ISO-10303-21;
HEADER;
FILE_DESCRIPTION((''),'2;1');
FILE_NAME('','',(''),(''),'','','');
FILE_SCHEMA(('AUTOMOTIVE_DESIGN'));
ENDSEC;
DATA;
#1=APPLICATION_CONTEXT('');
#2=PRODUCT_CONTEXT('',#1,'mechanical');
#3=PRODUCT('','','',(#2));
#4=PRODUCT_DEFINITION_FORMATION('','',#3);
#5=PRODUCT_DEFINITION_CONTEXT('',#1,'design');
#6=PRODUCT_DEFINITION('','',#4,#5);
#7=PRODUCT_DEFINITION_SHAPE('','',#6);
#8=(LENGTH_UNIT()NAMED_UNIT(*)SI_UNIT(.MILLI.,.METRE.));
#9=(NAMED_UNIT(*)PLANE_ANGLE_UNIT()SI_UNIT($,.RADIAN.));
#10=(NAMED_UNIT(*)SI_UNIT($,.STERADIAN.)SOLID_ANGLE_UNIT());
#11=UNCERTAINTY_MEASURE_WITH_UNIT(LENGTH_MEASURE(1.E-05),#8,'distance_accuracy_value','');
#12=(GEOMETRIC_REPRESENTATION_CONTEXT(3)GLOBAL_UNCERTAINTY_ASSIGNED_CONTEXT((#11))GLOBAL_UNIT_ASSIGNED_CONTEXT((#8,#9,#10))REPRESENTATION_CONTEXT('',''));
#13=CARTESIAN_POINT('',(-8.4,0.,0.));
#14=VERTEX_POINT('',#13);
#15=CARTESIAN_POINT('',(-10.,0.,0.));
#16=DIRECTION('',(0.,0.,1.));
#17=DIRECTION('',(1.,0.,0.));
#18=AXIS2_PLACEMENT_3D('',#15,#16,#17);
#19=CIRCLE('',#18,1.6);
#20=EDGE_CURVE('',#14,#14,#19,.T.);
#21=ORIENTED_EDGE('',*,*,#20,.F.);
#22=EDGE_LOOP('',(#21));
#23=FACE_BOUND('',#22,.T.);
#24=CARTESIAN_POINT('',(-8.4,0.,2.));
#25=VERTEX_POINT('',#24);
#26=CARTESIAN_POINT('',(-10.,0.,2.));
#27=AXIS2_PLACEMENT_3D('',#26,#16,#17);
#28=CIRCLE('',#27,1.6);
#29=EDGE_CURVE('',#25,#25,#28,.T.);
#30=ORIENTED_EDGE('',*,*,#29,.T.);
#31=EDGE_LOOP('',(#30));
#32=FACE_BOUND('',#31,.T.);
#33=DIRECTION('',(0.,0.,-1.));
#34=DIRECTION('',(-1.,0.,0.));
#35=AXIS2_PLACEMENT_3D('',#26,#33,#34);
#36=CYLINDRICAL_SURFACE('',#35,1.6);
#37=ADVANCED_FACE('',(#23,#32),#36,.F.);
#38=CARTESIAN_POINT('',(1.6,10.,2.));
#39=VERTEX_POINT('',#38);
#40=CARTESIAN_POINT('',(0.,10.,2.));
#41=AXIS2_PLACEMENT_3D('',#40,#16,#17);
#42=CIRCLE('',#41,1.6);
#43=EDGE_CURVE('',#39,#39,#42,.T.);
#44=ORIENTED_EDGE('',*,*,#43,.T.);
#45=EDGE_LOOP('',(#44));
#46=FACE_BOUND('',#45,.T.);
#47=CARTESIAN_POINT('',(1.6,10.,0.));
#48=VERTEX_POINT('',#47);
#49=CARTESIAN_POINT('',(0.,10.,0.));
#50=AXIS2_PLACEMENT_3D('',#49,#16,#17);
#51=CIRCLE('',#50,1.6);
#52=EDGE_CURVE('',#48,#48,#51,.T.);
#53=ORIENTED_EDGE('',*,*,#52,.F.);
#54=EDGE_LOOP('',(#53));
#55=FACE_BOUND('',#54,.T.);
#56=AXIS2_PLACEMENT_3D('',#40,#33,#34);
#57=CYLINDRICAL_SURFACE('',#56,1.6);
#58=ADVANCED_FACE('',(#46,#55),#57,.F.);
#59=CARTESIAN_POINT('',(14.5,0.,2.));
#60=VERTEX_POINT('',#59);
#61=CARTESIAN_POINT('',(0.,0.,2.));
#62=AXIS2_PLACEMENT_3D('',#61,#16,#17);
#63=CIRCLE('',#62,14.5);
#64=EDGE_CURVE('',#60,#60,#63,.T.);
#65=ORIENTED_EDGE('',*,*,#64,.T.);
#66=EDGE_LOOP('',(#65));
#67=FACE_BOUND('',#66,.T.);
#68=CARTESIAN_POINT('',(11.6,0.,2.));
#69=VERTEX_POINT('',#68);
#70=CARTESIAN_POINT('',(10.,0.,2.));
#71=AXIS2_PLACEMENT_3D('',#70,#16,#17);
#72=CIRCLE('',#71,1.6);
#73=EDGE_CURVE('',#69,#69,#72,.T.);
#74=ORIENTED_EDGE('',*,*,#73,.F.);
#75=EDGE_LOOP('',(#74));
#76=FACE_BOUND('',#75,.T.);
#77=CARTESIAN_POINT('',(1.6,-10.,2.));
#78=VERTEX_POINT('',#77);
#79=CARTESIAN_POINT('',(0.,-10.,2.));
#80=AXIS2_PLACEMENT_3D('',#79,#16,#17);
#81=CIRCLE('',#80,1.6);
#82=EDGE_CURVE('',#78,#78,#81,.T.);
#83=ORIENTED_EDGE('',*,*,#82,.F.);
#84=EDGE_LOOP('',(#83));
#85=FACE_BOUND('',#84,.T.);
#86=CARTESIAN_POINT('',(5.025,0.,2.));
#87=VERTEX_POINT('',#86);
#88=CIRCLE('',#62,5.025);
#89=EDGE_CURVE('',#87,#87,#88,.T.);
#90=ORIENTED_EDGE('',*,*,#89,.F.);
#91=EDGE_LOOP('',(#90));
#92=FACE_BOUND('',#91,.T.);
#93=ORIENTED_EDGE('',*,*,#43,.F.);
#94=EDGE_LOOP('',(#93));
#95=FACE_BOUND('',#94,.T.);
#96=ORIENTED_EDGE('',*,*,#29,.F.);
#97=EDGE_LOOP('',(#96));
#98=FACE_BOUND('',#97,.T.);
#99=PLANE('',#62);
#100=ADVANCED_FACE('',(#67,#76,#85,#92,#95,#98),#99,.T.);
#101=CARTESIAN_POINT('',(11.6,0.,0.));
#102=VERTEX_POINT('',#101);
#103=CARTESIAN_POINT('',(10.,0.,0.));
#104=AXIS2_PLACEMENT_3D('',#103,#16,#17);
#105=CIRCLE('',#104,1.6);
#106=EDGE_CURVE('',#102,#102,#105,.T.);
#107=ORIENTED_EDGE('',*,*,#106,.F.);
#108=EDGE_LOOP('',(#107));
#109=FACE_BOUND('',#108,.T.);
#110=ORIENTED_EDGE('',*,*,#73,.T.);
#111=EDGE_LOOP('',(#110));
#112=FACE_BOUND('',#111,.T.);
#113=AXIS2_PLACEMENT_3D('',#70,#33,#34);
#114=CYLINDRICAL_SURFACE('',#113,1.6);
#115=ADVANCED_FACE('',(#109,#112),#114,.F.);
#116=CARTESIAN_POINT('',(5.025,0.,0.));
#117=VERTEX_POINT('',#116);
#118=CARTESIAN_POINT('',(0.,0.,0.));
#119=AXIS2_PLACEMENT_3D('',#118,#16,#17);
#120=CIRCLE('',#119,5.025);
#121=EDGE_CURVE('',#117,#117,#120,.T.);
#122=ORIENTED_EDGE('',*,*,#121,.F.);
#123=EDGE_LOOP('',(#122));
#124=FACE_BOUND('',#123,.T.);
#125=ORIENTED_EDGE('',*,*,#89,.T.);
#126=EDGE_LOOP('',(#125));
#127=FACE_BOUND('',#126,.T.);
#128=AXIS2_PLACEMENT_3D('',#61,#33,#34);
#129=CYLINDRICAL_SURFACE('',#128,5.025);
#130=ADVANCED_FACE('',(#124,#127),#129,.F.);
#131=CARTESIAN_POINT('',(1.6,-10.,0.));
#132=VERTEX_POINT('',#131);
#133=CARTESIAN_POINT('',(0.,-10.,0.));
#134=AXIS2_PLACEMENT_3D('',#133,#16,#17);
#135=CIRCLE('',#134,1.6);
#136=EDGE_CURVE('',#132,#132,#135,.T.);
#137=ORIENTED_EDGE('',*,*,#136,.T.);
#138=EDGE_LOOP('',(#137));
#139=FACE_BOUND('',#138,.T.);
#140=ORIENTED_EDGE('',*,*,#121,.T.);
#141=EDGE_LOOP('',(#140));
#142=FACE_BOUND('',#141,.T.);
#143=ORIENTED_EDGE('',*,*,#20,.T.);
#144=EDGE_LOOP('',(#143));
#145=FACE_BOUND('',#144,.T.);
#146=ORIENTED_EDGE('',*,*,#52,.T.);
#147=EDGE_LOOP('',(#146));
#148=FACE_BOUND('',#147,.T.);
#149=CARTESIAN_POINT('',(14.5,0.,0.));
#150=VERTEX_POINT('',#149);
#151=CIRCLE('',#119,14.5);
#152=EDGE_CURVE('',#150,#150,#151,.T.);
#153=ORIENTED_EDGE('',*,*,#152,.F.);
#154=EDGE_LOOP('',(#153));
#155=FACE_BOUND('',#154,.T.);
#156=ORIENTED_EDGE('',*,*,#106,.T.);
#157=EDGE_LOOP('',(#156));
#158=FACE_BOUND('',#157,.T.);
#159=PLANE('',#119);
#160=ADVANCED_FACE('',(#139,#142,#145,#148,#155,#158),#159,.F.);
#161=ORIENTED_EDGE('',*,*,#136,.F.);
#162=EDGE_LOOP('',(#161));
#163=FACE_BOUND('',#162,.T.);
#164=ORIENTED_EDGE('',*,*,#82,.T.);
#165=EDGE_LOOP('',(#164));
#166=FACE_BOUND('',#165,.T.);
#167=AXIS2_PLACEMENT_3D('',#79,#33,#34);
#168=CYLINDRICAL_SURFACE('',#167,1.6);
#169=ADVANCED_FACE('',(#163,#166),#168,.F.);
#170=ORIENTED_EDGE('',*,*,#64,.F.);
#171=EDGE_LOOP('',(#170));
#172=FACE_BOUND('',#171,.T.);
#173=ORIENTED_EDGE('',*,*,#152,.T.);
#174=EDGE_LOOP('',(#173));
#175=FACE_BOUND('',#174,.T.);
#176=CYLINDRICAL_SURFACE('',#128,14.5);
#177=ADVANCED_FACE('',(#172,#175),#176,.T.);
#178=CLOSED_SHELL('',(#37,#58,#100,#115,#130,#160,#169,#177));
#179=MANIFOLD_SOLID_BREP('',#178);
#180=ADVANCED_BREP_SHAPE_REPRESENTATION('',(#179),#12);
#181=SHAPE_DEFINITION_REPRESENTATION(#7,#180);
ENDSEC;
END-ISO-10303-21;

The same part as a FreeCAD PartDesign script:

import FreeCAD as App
import Part
import Sketcher

doc = App.newDocument("Part")
params = doc.addObject("Spreadsheet::Sheet", "Params")
for row, (alias, value) in enumerate([
    ("sketch1_diameter", "29 mm"),
    ("sketch1_diameter2", "3.2 mm"),
    ("sketch1_diameter3", "10.05 mm"),
    ("pad1_length", "2 mm"),
], start=1):
    params.set(f"A{row}", alias)
    params.set(f"B{row}", "=" + value)
    params.setAlias(f"B{row}", alias)

body = doc.addObject("PartDesign::Body", "Body")

# Sketch on XY plane
sketch1 = body.newObject("Sketcher::SketchObject", "Sketch")
sketch1.AttachmentSupport = (doc.getObject("XY_Plane"), [""])
sketch1.MapMode = "FlatFace"
sketch1.addGeometry([
    Part.Circle(App.Vector(0, 0, 0), App.Vector(0, 0, 1), 14.5),  # 0
    Part.Circle(App.Vector(0, -10, 0), App.Vector(0, 0, 1), 1.6),  # 1
    Part.Circle(App.Vector(-10, 0, 0), App.Vector(0, 0, 1), 1.6),  # 2
    Part.Circle(App.Vector(0, 0, 0), App.Vector(0, 0, 1), 5),  # 3
    Part.Circle(App.Vector(10, 0, 0), App.Vector(0, 0, 1), 1.6),  # 4
    Part.Circle(App.Vector(0, 10, 0), App.Vector(0, 0, 1), 1.6),  # 5
], False)
sketch1.addConstraint([
    Sketcher.Constraint("Coincident", 0, 3, -1, 1),
    Sketcher.Constraint("Coincident", 3, 3, -1, 1),
    Sketcher.Constraint("Equal", 1, 2),
    Sketcher.Constraint("Equal", 2, 4),
    Sketcher.Constraint("Equal", 4, 5),
    Sketcher.Constraint("Symmetric", 2, 3, 4, 3, -1, 1),
    Sketcher.Constraint("Symmetric", 1, 3, 5, 3, -1, 1),
    Sketcher.Constraint("PointOnObject", 1, 3, -2),
    Sketcher.Constraint("PointOnObject", 2, 3, -1),
    Sketcher.Constraint("Diameter", 0, 29.0),
    Sketcher.Constraint("Diameter", 1, 3.2),
    Sketcher.Constraint("Diameter", 3, 10.05),
    Sketcher.Constraint("DistanceY", 1, 3, -1, 1, 10.0),
    Sketcher.Constraint("DistanceX", 2, 3, -1, 1, 10.0),
])
sketch1.setExpression("Constraints[9]", "Params.sketch1_diameter")
sketch1.setExpression("Constraints[10]", "Params.sketch1_diameter2")
sketch1.setExpression("Constraints[11]", "Params.sketch1_diameter3")
pad1 = body.newObject("PartDesign::Pad", "Pad")
pad1.Profile = sketch1
pad1.setExpression("Length", "Params.pad1_length")

doc.recompute()
